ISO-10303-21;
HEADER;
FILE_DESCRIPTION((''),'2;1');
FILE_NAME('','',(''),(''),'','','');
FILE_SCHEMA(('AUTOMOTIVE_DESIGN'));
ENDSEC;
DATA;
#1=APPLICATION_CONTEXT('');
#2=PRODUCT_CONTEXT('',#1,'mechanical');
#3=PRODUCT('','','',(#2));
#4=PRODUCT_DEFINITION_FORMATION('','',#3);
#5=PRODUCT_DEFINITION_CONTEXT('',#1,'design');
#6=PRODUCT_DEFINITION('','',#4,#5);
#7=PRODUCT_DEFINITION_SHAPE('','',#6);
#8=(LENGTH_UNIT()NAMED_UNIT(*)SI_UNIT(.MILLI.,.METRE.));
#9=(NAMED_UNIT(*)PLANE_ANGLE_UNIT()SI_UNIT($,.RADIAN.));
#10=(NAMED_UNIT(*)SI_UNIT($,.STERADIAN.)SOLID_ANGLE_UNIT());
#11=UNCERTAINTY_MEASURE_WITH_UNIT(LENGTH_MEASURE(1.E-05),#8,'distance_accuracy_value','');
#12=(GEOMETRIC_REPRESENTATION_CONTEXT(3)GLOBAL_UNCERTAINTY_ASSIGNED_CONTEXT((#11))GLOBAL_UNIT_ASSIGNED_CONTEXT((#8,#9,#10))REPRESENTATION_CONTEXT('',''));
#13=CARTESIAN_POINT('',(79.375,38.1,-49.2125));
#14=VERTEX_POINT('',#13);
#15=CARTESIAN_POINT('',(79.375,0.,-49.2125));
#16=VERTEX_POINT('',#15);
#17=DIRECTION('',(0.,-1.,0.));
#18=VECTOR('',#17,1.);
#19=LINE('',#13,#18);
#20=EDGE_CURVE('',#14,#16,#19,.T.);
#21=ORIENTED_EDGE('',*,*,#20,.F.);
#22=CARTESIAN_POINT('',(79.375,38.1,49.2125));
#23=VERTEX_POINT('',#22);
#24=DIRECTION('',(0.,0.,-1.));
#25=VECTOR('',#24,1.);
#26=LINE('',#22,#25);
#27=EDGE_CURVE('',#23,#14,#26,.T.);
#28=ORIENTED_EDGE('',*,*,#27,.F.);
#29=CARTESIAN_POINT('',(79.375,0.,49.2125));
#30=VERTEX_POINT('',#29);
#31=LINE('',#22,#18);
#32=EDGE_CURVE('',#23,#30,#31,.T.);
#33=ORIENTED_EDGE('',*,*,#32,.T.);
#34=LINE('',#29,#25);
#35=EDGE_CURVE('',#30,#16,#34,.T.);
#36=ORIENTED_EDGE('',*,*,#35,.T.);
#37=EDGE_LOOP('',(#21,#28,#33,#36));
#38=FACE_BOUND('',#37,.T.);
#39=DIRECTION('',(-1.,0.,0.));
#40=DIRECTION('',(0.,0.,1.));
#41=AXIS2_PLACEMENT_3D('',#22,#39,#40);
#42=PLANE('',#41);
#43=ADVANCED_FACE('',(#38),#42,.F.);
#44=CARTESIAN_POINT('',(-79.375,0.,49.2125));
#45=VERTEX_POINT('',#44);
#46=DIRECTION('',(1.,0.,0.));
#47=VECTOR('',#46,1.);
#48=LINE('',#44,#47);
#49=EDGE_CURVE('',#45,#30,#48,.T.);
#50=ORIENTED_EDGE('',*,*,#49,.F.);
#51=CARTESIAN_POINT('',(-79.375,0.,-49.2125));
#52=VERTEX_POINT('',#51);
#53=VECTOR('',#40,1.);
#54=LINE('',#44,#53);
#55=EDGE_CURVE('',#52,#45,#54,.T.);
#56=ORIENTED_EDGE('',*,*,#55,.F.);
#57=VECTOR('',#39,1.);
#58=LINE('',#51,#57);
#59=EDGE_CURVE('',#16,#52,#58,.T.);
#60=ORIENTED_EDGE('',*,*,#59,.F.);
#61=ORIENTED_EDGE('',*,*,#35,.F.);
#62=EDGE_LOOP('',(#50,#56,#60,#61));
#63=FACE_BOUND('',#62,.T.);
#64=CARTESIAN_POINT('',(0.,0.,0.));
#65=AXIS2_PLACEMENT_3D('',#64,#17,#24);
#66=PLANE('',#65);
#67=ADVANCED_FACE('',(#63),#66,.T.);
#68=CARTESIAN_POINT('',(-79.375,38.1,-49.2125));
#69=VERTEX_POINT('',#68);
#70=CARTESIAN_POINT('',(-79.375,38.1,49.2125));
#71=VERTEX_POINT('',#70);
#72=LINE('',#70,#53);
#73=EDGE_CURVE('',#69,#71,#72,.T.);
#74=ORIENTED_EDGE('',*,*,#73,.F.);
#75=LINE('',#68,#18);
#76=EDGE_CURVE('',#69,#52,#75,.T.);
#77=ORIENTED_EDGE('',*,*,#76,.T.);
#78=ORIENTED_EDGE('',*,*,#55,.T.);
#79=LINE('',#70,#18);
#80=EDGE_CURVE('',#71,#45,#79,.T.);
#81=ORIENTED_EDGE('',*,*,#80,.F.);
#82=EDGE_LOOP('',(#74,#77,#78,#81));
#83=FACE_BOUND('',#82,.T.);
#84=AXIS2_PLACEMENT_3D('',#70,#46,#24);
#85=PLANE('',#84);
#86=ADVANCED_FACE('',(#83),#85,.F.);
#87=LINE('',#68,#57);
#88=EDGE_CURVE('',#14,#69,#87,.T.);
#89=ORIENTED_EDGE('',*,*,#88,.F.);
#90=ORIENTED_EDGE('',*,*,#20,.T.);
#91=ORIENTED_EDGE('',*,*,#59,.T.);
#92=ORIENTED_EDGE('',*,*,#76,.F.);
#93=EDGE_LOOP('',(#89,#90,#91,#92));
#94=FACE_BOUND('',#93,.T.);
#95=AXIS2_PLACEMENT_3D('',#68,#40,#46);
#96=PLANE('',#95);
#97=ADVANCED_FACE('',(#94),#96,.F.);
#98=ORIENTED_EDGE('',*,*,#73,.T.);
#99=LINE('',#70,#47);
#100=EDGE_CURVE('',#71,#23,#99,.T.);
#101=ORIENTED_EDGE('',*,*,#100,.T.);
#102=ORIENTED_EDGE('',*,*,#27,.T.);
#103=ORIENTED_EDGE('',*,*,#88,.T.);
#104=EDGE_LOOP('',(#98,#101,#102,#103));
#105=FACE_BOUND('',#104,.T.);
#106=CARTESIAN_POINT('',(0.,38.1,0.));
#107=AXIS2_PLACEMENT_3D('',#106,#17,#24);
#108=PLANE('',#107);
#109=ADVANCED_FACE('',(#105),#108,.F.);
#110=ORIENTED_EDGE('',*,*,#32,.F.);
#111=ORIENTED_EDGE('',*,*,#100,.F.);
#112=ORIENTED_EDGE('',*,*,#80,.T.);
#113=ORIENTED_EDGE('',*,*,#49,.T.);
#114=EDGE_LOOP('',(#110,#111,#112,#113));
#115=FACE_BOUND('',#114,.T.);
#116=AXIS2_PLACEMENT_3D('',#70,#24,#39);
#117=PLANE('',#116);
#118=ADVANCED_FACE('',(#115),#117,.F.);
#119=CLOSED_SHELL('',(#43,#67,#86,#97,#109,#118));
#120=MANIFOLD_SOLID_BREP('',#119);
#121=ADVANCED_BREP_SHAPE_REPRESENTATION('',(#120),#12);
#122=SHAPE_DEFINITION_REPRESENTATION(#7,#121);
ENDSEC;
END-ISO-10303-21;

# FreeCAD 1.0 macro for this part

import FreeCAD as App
import Part
import Sketcher

V = App.Vector
Q = App.Units.Quantity

doc = App.newDocument("Part")
body = doc.addObject("PartDesign::Body", "Body")

# Sketch on XZ plane
sketch1 = body.newObject("Sketcher::SketchObject", "Sketch")
sketch1.AttachmentSupport = (doc.getObject("XZ_Plane"), [""])
sketch1.MapMode = "FlatFace"
sketch1.addGeometry(Part.LineSegment(V(-79, -49, 0), V(-79, 49, 0)), False)
sketch1.addGeometry(Part.LineSegment(V(-79, 49, 0), V(79, 49, 0)), False)
sketch1.addGeometry(Part.LineSegment(V(79, 49, 0), V(79, -49, 0)), False)
sketch1.addGeometry(Part.LineSegment(V(79, -49, 0), V(-79, -49, 0)), False)
sketch1.addConstraint(Sketcher.Constraint("Coincident", 0, 2, 1, 1))
sketch1.addConstraint(Sketcher.Constraint("Coincident", 1, 2, 2, 1))
sketch1.addConstraint(Sketcher.Constraint("Coincident", 2, 2, 3, 1))
sketch1.addConstraint(Sketcher.Constraint("Coincident", 3, 2, 0, 1))
sketch1.addConstraint(Sketcher.Constraint("Vertical", 0))
sketch1.addConstraint(Sketcher.Constraint("Horizontal", 1))
sketch1.addConstraint(Sketcher.Constraint("Vertical", 2))
sketch1.addConstraint(Sketcher.Constraint("Horizontal", 3))
sketch1.addConstraint(Sketcher.Constraint("Symmetric", 0, 2, 2, 2, -1, 1))
sketch1.addConstraint(Sketcher.Constraint("DistanceX", 1, 1, 1, 2, Q("6.25 in")))
sketch1.addConstraint(Sketcher.Constraint("DistanceY", 0, 1, 0, 2, Q("3.875 in")))
pad1 = body.newObject("PartDesign::Pad", "Pad")
pad1.Profile = sketch1
pad1.Length = Q("1.5 in")
pad1.Reversed = True

doc.recompute()
